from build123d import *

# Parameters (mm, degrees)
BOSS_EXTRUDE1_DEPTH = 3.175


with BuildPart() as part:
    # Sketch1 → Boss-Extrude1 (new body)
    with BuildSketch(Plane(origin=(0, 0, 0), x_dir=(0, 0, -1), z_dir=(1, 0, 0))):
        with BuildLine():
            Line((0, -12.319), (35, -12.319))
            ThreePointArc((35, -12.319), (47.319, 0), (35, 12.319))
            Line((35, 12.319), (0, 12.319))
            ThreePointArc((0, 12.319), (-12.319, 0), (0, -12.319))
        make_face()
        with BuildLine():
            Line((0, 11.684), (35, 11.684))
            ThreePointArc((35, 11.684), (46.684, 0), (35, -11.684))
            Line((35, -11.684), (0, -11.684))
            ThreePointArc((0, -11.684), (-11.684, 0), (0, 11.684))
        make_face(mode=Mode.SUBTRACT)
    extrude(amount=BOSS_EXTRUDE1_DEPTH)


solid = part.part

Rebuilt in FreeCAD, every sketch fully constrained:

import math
import FreeCAD as App
import Part
import Sketcher
Q = App.Units.Quantity

doc = App.newDocument("Part")
body = doc.addObject("PartDesign::Body", "Body")

# Sketch on YZ plane
sketch1 = body.newObject("Sketcher::SketchObject", "Sketch")
sketch1.AttachmentSupport = (doc.getObject("YZ_Plane"), [""])
sketch1.MapMode = "FlatFace"
sketch1.addGeometry(Part.LineSegment(App.Vector(-12.319, 0, 0), App.Vector(-12.319, -35, 0)), False)
sketch1.addGeometry(Part.ArcOfCircle(Part.Circle(App.Vector(0, -35, 0), App.Vector(0, 0, 1), 12.319), math.radians(180), math.radians(360)), False)
sketch1.addGeometry(Part.LineSegment(App.Vector(12.319, -35, 0), App.Vector(12.319, 0, 0)), False)
sketch1.addGeometry(Part.ArcOfCircle(Part.Circle(App.Vector(0, 0, 0), App.Vector(0, 0, 1), 12.319), math.radians(0), math.radians(180)), False)
sketch1.addGeometry(Part.ArcOfCircle(Part.Circle(App.Vector(0, 0, 0), App.Vector(0, 0, 1), 11.684), math.radians(0), math.radians(180)), False)
sketch1.addGeometry(Part.LineSegment(App.Vector(11.684, 0, 0), App.Vector(11.684, -35, 0)), False)
sketch1.addGeometry(Part.ArcOfCircle(Part.Circle(App.Vector(0, -35, 0), App.Vector(0, 0, 1), 11.684), math.radians(180), math.radians(360)), False)
sketch1.addGeometry(Part.LineSegment(App.Vector(-11.684, -35, 0), App.Vector(-11.684, 0, 0)), False)
sketch1.addConstraint(Sketcher.Constraint("Tangent", 0, 2, 1, 1))
sketch1.addConstraint(Sketcher.Constraint("Tangent", 1, 2, 2, 1))
sketch1.addConstraint(Sketcher.Constraint("Tangent", 2, 2, 3, 1))
sketch1.addConstraint(Sketcher.Constraint("Tangent", 3, 2, 0, 1))
sketch1.addConstraint(Sketcher.Constraint("Tangent", 4, 1, 5, 1))
sketch1.addConstraint(Sketcher.Constraint("Tangent", 5, 2, 6, 2))
sketch1.addConstraint(Sketcher.Constraint("Tangent", 6, 1, 7, 1))
sketch1.addConstraint(Sketcher.Constraint("Tangent", 7, 2, 4, 2))
sketch1.addConstraint(Sketcher.Constraint("Vertical", 0))
sketch1.addConstraint(Sketcher.Constraint("Vertical", 2))
sketch1.addConstraint(Sketcher.Constraint("Vertical", 5))
sketch1.addConstraint(Sketcher.Constraint("Vertical", 7))
sketch1.addConstraint(Sketcher.Constraint("Coincident", 3, 3, -1, 1))
sketch1.addConstraint(Sketcher.Constraint("Coincident", 4, 3, -1, 1))
sketch1.addConstraint(Sketcher.Constraint("Horizontal", 6, 3, 0, 2))
sketch1.addConstraint(Sketcher.Constraint("Radius", 4, Q("0.46 in")))
sketch1.addConstraint(Sketcher.Constraint("Radius", 1, Q("0.485 in")))
sketch1.addConstraint(Sketcher.Constraint("DistanceY", 0, 2, 0, 1, Q("35 mm")))
pad1 = body.newObject("PartDesign::Pad", "Pad")
pad1.Profile = sketch1
pad1.Length = Q("0.125 in")

doc.recompute()
